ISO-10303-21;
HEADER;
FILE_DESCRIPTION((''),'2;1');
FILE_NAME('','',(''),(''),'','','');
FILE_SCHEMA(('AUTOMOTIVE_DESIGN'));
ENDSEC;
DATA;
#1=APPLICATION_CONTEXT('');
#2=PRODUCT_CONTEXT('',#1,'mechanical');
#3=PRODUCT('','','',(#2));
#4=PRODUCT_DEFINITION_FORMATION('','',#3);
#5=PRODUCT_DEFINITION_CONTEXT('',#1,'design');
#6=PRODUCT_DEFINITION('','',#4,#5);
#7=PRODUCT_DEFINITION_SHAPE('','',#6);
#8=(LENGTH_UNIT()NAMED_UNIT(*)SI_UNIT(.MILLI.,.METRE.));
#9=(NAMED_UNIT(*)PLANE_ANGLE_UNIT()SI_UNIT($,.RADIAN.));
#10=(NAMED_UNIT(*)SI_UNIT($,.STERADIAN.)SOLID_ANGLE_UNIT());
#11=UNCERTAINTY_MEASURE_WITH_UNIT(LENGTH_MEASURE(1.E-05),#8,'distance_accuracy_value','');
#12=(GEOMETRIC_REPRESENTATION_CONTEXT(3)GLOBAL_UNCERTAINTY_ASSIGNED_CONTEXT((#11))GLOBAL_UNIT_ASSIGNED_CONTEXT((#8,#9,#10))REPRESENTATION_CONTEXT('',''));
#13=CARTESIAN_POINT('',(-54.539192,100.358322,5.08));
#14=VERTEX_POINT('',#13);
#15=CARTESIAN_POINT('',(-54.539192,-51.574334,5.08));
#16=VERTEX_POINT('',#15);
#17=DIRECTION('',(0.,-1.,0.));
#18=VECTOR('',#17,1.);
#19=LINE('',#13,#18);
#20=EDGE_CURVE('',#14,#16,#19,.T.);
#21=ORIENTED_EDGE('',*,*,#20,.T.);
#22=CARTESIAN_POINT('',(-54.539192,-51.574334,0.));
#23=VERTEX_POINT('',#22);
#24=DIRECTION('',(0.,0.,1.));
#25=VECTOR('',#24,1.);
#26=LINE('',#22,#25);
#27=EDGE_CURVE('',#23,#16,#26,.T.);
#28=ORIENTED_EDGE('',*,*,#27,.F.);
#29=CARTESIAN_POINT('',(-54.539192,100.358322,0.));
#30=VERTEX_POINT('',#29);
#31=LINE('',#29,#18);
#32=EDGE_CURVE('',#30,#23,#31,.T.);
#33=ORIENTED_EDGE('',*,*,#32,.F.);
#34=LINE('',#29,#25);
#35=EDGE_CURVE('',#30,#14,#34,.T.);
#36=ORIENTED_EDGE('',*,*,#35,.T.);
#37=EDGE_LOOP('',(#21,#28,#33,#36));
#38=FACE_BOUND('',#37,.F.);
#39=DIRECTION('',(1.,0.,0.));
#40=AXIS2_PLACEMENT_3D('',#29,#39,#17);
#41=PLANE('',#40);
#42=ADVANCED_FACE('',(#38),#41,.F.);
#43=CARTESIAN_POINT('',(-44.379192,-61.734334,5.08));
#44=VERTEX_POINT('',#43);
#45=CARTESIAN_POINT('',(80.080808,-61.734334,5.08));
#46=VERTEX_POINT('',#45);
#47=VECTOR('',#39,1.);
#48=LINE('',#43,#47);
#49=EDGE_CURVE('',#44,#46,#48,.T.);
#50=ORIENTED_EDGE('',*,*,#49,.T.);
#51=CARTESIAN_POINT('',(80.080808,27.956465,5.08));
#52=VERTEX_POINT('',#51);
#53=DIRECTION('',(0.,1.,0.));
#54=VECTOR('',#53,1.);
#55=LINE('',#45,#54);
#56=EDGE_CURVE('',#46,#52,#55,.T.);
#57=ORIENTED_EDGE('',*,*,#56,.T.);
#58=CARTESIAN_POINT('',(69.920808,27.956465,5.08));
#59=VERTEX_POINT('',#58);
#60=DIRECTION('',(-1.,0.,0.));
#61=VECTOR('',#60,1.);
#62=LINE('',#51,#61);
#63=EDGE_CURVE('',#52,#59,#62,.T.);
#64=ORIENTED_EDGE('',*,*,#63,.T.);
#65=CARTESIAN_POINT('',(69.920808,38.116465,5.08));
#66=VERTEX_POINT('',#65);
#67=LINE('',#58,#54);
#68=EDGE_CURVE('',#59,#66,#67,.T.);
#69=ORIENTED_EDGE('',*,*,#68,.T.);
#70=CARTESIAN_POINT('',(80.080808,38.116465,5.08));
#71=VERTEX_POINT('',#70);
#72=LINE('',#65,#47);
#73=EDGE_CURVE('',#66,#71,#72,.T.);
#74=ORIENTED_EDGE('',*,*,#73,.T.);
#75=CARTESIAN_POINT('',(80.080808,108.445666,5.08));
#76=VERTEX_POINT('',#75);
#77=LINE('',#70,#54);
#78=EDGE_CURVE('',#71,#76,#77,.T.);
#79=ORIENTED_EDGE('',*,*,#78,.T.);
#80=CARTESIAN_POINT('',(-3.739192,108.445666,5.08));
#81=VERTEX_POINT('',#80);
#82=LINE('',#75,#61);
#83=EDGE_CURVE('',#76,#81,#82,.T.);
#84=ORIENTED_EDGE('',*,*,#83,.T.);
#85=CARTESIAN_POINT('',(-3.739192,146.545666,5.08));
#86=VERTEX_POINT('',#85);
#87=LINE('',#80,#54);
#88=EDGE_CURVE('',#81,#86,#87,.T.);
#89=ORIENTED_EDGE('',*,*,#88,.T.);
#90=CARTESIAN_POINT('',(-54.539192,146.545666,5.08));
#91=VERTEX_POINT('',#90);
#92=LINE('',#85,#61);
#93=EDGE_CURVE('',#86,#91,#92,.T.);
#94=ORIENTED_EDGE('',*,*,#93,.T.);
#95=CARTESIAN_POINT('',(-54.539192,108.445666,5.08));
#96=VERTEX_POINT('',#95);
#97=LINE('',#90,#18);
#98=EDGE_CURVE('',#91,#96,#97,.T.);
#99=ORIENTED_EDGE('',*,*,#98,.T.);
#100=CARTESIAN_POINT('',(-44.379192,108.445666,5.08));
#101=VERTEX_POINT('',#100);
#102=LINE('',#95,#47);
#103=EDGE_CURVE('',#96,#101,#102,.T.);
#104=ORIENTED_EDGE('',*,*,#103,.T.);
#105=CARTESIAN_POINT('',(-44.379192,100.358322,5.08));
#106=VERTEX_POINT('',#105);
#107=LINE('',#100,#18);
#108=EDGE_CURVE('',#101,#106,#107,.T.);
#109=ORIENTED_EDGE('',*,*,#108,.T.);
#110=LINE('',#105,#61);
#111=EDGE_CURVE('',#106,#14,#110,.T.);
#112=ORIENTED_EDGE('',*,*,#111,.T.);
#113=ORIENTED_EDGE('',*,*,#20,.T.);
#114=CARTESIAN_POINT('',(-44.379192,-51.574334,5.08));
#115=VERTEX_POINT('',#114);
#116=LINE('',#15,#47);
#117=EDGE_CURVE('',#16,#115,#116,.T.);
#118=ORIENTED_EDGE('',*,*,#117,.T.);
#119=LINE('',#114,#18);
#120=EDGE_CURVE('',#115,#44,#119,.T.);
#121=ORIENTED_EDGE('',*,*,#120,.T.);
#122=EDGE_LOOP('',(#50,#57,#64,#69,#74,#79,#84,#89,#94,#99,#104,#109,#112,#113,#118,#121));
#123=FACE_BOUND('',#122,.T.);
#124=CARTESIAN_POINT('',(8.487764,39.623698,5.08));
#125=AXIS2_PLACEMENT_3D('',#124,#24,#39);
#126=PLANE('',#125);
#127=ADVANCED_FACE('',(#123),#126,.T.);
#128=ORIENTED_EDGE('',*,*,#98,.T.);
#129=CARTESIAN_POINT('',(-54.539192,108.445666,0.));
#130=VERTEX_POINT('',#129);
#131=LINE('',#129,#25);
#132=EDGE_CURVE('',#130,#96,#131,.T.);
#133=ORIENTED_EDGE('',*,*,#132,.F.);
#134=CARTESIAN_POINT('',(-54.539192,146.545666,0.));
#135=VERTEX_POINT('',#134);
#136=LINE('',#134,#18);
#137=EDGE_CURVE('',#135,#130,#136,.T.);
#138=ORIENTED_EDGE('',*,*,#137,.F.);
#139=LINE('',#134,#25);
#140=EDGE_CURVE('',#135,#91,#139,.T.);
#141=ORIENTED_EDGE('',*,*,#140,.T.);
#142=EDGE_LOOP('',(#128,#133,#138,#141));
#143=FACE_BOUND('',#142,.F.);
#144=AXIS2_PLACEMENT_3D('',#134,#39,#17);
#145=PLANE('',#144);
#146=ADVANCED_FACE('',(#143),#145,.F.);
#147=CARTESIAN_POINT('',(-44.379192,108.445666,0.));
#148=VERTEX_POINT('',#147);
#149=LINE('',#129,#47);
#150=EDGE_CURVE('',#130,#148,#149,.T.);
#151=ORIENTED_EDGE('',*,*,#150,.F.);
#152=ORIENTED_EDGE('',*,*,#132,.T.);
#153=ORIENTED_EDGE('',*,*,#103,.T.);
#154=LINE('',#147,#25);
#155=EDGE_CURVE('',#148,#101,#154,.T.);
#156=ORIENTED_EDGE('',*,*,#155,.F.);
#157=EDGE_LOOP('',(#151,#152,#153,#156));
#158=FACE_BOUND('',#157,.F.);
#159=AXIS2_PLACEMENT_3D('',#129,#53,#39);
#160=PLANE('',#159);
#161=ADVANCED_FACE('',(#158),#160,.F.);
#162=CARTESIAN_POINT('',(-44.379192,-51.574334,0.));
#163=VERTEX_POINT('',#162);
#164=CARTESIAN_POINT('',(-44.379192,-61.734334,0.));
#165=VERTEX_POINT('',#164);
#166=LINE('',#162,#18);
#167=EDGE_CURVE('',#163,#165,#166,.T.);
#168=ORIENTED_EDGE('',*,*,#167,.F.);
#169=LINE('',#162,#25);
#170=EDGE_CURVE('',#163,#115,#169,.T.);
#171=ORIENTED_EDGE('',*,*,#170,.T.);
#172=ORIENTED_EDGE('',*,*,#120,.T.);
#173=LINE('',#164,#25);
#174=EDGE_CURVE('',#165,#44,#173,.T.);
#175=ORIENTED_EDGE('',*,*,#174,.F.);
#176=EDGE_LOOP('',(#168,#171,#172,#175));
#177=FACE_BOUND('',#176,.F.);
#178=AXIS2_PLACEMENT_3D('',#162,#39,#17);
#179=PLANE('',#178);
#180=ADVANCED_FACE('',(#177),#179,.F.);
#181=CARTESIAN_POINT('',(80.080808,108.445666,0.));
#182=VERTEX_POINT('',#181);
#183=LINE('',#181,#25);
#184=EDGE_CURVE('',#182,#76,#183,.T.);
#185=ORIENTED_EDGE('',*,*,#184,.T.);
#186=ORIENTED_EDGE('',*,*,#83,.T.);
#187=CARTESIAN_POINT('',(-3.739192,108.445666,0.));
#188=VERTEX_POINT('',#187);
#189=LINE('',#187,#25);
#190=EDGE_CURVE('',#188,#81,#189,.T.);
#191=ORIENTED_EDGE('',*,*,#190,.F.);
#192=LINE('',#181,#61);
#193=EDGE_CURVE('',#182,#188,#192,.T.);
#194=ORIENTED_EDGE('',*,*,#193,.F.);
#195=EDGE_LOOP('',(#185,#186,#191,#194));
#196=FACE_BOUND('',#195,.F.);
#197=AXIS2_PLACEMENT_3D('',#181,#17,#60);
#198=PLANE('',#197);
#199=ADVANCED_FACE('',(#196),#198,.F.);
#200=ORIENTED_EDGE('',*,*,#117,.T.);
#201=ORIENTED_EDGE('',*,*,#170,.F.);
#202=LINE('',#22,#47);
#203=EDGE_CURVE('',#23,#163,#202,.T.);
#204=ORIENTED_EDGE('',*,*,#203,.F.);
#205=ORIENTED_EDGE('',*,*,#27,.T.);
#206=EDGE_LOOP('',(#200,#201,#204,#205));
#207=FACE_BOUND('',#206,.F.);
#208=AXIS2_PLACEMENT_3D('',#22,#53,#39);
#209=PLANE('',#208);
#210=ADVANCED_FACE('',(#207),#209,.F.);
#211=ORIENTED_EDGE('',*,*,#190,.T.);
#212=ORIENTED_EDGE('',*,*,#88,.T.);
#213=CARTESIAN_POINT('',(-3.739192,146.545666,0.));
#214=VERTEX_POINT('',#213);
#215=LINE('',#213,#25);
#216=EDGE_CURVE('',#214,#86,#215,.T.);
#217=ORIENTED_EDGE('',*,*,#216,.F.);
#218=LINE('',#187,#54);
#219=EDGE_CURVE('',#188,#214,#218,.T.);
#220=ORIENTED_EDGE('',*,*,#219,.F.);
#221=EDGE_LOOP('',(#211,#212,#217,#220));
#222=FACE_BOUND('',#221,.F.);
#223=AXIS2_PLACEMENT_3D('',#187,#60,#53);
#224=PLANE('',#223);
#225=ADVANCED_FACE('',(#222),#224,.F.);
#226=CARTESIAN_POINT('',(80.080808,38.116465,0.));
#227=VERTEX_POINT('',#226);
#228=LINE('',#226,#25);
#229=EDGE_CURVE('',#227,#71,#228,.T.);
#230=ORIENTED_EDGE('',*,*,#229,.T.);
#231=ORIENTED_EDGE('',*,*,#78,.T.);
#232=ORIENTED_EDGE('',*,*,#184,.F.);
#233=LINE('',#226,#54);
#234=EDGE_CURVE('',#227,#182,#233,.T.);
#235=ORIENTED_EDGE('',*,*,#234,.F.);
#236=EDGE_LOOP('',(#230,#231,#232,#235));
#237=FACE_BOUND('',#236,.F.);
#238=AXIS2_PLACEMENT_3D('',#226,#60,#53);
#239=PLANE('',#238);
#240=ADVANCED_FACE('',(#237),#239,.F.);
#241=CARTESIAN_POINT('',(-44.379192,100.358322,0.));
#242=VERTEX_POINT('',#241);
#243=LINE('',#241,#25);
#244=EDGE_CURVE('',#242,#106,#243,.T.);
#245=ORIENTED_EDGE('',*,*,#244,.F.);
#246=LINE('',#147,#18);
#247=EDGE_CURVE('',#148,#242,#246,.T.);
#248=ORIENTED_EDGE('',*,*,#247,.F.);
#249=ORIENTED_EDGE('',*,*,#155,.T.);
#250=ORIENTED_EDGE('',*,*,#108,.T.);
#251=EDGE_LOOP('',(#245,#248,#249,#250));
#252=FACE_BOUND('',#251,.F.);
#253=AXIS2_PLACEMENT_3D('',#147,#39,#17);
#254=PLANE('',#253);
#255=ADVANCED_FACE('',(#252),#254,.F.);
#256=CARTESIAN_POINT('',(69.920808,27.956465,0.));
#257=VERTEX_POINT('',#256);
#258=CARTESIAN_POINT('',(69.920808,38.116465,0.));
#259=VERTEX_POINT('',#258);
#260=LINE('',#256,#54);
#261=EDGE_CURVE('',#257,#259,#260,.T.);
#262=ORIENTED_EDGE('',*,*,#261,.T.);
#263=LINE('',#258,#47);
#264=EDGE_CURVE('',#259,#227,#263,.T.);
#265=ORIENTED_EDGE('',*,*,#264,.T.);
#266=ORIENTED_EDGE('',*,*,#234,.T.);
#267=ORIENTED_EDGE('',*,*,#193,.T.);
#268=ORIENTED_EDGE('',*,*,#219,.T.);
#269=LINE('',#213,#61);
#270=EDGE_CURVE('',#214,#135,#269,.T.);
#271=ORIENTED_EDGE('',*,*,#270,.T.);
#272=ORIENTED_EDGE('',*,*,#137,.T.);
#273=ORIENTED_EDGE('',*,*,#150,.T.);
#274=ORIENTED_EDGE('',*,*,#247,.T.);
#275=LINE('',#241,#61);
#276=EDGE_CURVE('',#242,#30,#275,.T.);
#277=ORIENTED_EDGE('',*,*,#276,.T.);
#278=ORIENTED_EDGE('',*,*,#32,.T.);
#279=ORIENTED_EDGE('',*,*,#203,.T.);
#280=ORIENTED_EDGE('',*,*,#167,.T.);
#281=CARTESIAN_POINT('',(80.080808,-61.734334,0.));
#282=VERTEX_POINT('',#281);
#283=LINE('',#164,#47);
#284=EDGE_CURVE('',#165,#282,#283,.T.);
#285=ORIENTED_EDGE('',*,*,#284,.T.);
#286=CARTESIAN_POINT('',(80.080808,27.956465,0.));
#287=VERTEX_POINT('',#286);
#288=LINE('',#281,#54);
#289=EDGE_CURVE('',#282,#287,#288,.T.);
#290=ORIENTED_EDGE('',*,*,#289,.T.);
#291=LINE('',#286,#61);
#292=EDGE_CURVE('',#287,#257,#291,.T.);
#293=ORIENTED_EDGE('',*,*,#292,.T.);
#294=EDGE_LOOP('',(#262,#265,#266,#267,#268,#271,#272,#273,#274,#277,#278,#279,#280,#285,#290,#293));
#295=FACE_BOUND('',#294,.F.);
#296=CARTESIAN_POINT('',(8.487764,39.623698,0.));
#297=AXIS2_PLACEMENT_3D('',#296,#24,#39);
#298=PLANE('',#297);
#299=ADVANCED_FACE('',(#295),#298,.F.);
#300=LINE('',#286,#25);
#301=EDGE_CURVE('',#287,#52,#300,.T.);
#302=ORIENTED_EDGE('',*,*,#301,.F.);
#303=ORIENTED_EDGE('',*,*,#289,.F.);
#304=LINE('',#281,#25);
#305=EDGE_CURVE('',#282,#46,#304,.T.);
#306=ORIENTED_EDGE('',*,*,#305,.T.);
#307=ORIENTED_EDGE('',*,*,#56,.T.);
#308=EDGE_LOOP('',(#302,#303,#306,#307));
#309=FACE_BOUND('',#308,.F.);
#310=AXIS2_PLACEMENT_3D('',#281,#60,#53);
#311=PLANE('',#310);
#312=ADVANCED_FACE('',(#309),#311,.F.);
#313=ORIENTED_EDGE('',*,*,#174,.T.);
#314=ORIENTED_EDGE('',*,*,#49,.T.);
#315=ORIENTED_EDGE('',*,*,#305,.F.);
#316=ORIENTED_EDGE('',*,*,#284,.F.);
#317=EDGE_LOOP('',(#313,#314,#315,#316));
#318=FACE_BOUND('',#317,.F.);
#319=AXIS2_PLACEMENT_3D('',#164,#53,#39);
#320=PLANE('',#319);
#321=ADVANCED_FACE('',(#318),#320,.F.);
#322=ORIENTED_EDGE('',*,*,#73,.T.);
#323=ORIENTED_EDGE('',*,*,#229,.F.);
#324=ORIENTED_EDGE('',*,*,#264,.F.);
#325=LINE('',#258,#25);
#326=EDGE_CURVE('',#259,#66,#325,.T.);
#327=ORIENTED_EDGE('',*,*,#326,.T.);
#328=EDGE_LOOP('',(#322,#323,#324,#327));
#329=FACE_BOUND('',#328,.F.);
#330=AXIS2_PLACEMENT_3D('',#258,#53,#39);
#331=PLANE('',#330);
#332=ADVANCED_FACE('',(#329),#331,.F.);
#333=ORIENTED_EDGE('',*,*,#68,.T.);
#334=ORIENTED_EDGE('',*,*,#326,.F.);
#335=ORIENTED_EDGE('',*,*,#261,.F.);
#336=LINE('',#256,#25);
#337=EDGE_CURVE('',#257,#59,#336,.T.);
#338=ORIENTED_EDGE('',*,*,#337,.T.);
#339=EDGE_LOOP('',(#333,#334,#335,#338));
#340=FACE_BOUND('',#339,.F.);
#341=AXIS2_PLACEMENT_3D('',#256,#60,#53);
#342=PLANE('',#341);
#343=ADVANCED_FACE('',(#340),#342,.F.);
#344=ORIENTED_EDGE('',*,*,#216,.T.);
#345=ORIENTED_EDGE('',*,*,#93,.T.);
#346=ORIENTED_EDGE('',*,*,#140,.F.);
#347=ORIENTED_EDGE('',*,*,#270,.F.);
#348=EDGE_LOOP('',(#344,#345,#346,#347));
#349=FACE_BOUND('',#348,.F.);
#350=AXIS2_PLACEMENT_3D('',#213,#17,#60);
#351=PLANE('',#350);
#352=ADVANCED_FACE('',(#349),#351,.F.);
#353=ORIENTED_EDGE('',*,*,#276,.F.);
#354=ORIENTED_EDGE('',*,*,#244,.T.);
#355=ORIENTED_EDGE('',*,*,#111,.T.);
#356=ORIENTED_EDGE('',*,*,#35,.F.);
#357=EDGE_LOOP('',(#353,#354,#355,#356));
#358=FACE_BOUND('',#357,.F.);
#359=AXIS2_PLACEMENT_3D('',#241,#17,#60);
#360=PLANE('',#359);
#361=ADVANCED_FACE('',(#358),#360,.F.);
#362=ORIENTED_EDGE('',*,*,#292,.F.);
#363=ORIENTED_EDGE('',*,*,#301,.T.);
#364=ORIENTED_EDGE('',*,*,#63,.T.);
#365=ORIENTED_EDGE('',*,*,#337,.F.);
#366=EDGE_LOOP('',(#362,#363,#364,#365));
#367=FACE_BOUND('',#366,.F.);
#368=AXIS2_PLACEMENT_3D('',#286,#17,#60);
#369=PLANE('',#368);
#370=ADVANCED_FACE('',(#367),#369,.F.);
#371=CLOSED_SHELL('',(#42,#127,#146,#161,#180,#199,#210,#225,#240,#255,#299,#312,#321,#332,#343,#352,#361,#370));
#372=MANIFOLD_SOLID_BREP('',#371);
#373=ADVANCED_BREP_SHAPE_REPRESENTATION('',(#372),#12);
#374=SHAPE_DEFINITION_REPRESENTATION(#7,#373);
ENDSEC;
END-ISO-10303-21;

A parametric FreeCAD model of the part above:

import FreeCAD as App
import Part
import Sketcher
Q = App.Units.Quantity

doc = App.newDocument("Part")
params = doc.addObject("Spreadsheet::Sheet", "Params")
for row, (alias, value) in enumerate([
    ("sketch1_width", "2 in"),
    ("sketch1_width2", "0.4 in"),
    ("sketch1_width3", "4.9 in"),
    ("sketch1_height", "1.5 in"),
    ("pad1_length", "0.2 in"),
], start=1):
    params.set(f"A{row}", alias)
    params.set(f"B{row}", "=" + value)
    params.setAlias(f"B{row}", alias)

body = doc.addObject("PartDesign::Body", "Body")

sketch1 = doc.addObject("Sketcher::SketchObject", "Sketch")
body.addObject(sketch1)
sketch1.AttachmentSupport = (doc.XY_Plane, [""])
sketch1.MapMode = "FlatFace"
sketch1.addGeometry([
    Part.LineSegment(App.Vector(-55, 100, 0), App.Vector(-55, -52, 0)),
    Part.LineSegment(App.Vector(-55, -52, 0), App.Vector(-44, -52, 0)),
    Part.LineSegment(App.Vector(-44, -52, 0), App.Vector(-44, -62, 0)),
    Part.LineSegment(App.Vector(-44, -62, 0), App.Vector(80, -62, 0)),
    Part.LineSegment(App.Vector(80, -62, 0), App.Vector(80, 28, 0)),
    Part.LineSegment(App.Vector(80, 28, 0), App.Vector(70, 28, 0)),
    Part.LineSegment(App.Vector(70, 28, 0), App.Vector(70, 38, 0)),
    Part.LineSegment(App.Vector(70, 38, 0), App.Vector(80, 38, 0)),
    Part.LineSegment(App.Vector(80, 38, 0), App.Vector(80, 108, 0)),
    Part.LineSegment(App.Vector(80, 108, 0), App.Vector(-4, 108, 0)),
    Part.LineSegment(App.Vector(-4, 108, 0), App.Vector(-4, 147, 0)),
    Part.LineSegment(App.Vector(-4, 147, 0), App.Vector(-55, 147, 0)),
    Part.LineSegment(App.Vector(-55, 147, 0), App.Vector(-55, 108, 0)),
    Part.LineSegment(App.Vector(-55, 108, 0), App.Vector(-44, 108, 0)),
    Part.LineSegment(App.Vector(-44, 108, 0), App.Vector(-44, 100, 0)),
    Part.LineSegment(App.Vector(-44, 100, 0), App.Vector(-55, 100, 0)),
], False)
sketch1.addConstraint([
    Sketcher.Constraint("Coincident", 0, 2, 1, 1),
    Sketcher.Constraint("Coincident", 1, 2, 2, 1),
    Sketcher.Constraint("Coincident", 2, 2, 3, 1),
    Sketcher.Constraint("Coincident", 3, 2, 4, 1),
    Sketcher.Constraint("Coincident", 4, 2, 5, 1),
    Sketcher.Constraint("Coincident", 5, 2, 6, 1),
    Sketcher.Constraint("Coincident", 6, 2, 7, 1),
    Sketcher.Constraint("Coincident", 7, 2, 8, 1),
    Sketcher.Constraint("Coincident", 8, 2, 9, 1),
    Sketcher.Constraint("Coincident", 9, 2, 10, 1),
    Sketcher.Constraint("Coincident", 10, 2, 11, 1),
    Sketcher.Constraint("Coincident", 11, 2, 12, 1),
    Sketcher.Constraint("Coincident", 12, 2, 13, 1),
    Sketcher.Constraint("Coincident", 13, 2, 14, 1),
    Sketcher.Constraint("Coincident", 14, 2, 15, 1),
    Sketcher.Constraint("Coincident", 15, 2, 0, 1),
    Sketcher.Constraint("Vertical", 0),
    Sketcher.Constraint("Horizontal", 1),
    Sketcher.Constraint("Vertical", 2),
    Sketcher.Constraint("Horizontal", 3),
    Sketcher.Constraint("Vertical", 4),
    Sketcher.Constraint("Horizontal", 5),
    Sketcher.Constraint("Vertical", 6),
    Sketcher.Constraint("Horizontal", 7),
    Sketcher.Constraint("Vertical", 8),
    Sketcher.Constraint("Horizontal", 9),
    Sketcher.Constraint("Vertical", 10),
    Sketcher.Constraint("Horizontal", 11),
    Sketcher.Constraint("Vertical", 12),
    Sketcher.Constraint("Horizontal", 13),
    Sketcher.Constraint("Vertical", 14),
    Sketcher.Constraint("Horizontal", 15),
    Sketcher.Constraint("Horizontal", 9, 2, 12, 2),
    Sketcher.Constraint("Vertical", 4, 2, 7, 2),
    Sketcher.Constraint("Vertical", 0, 2, 11, 2),
    Sketcher.Constraint("Vertical", 2, 2, 13, 2),
    Sketcher.Constraint("Equal", 1, 5),
    Sketcher.Constraint("Equal", 15, 2),
    Sketcher.Constraint("Equal", 2, 6),
    Sketcher.Constraint("DistanceX", 11, 2, 11, 1, Q("2 in")),
    Sketcher.Constraint("DistanceX", 1, 1, 1, 2, Q("0.4 in")),
    Sketcher.Constraint("DistanceX", 3, 1, 3, 2, Q("4.9 in")),
    Sketcher.Constraint("DistanceY", 10, 1, 10, 2, Q("1.5 in")),
    Sketcher.Constraint("DistanceY", 3, 2, 8, 2, Q("6.7 in")),
    Sketcher.Constraint("DistanceY", 4, 1, 4, 2, 89.690799),
    Sketcher.Constraint("DistanceY", 0, 2, 0, 1, 151.932656),
    Sketcher.Constraint("DistanceX", -1, 1, 3, 2, 80.080808),
    Sketcher.Constraint("DistanceY", -1, 1, 14, 2, 100.358322),
])
sketch1.setExpression("Constraints[39]", "Params.sketch1_width")
sketch1.setExpression("Constraints[40]", "Params.sketch1_width2")
sketch1.setExpression("Constraints[41]", "Params.sketch1_width3")
sketch1.setExpression("Constraints[42]", "Params.sketch1_height")
pad1 = doc.addObject("PartDesign::Pad", "Pad")
body.addObject(pad1)
pad1.Profile = sketch1
pad1.setExpression("Length", "Params.pad1_length")

doc.recompute()
